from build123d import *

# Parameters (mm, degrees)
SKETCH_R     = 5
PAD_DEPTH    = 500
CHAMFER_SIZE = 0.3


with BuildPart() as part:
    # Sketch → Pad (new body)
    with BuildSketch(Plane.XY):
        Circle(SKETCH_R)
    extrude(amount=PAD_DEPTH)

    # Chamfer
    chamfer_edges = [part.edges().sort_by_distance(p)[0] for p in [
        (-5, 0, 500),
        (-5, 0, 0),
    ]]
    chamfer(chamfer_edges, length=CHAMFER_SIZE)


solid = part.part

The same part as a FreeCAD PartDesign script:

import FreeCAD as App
import Part
import Sketcher
Q = App.Units.Quantity


def edges_at(feature, points):
    """Names of the edges that pass closest to the given points."""
    edges = feature.Shape.Edges
    near = lambda p: min(range(len(edges)), key=lambda i: edges[i].distToShape(Part.Vertex(*p))[0])
    return sorted({f"Edge{near(p) + 1}" for p in points})

doc = App.newDocument("Part")
params = doc.addObject("Spreadsheet::Sheet", "Params")
for row, (alias, value) in enumerate([
    ("sketch1_diameter", "10 mm"),
    ("pad1_length", "500 mm"),
    ("chamfer_size", "0.3 mm"),
], start=1):
    params.set(f"A{row}", alias)
    params.set(f"B{row}", "=" + value)
    params.setAlias(f"B{row}", alias)

body = doc.addObject("PartDesign::Body", "Body")

sketch1 = body.newObject("Sketcher::SketchObject", "Sketch")
sketch1.AttachmentSupport = (doc.getObject("XY_Plane"), [""])
sketch1.MapMode = "FlatFace"
sketch1.addGeometry(Part.Circle(App.Vector(0, 0, 0), App.Vector(0, 0, 1), 5), False)
sketch1.addConstraint([
    Sketcher.Constraint("Coincident", 0, 3, -1, 1),
    Sketcher.Constraint("Diameter", 0, Q("10 mm")),
])
sketch1.setExpression("Constraints[1]", "Params.sketch1_diameter")
pad1 = body.newObject("PartDesign::Pad", "Pad")
pad1.Profile = sketch1
pad1.setExpression("Length", "Params.pad1_length")
doc.recompute()

chamfer = body.newObject("PartDesign::Chamfer", "Chamfer")
chamfer.Base = (pad1, edges_at(pad1, [(-5, 0, 500), (-5, 0, 0)]))
chamfer.setExpression("Size", "Params.chamfer_size")

doc.recompute()
